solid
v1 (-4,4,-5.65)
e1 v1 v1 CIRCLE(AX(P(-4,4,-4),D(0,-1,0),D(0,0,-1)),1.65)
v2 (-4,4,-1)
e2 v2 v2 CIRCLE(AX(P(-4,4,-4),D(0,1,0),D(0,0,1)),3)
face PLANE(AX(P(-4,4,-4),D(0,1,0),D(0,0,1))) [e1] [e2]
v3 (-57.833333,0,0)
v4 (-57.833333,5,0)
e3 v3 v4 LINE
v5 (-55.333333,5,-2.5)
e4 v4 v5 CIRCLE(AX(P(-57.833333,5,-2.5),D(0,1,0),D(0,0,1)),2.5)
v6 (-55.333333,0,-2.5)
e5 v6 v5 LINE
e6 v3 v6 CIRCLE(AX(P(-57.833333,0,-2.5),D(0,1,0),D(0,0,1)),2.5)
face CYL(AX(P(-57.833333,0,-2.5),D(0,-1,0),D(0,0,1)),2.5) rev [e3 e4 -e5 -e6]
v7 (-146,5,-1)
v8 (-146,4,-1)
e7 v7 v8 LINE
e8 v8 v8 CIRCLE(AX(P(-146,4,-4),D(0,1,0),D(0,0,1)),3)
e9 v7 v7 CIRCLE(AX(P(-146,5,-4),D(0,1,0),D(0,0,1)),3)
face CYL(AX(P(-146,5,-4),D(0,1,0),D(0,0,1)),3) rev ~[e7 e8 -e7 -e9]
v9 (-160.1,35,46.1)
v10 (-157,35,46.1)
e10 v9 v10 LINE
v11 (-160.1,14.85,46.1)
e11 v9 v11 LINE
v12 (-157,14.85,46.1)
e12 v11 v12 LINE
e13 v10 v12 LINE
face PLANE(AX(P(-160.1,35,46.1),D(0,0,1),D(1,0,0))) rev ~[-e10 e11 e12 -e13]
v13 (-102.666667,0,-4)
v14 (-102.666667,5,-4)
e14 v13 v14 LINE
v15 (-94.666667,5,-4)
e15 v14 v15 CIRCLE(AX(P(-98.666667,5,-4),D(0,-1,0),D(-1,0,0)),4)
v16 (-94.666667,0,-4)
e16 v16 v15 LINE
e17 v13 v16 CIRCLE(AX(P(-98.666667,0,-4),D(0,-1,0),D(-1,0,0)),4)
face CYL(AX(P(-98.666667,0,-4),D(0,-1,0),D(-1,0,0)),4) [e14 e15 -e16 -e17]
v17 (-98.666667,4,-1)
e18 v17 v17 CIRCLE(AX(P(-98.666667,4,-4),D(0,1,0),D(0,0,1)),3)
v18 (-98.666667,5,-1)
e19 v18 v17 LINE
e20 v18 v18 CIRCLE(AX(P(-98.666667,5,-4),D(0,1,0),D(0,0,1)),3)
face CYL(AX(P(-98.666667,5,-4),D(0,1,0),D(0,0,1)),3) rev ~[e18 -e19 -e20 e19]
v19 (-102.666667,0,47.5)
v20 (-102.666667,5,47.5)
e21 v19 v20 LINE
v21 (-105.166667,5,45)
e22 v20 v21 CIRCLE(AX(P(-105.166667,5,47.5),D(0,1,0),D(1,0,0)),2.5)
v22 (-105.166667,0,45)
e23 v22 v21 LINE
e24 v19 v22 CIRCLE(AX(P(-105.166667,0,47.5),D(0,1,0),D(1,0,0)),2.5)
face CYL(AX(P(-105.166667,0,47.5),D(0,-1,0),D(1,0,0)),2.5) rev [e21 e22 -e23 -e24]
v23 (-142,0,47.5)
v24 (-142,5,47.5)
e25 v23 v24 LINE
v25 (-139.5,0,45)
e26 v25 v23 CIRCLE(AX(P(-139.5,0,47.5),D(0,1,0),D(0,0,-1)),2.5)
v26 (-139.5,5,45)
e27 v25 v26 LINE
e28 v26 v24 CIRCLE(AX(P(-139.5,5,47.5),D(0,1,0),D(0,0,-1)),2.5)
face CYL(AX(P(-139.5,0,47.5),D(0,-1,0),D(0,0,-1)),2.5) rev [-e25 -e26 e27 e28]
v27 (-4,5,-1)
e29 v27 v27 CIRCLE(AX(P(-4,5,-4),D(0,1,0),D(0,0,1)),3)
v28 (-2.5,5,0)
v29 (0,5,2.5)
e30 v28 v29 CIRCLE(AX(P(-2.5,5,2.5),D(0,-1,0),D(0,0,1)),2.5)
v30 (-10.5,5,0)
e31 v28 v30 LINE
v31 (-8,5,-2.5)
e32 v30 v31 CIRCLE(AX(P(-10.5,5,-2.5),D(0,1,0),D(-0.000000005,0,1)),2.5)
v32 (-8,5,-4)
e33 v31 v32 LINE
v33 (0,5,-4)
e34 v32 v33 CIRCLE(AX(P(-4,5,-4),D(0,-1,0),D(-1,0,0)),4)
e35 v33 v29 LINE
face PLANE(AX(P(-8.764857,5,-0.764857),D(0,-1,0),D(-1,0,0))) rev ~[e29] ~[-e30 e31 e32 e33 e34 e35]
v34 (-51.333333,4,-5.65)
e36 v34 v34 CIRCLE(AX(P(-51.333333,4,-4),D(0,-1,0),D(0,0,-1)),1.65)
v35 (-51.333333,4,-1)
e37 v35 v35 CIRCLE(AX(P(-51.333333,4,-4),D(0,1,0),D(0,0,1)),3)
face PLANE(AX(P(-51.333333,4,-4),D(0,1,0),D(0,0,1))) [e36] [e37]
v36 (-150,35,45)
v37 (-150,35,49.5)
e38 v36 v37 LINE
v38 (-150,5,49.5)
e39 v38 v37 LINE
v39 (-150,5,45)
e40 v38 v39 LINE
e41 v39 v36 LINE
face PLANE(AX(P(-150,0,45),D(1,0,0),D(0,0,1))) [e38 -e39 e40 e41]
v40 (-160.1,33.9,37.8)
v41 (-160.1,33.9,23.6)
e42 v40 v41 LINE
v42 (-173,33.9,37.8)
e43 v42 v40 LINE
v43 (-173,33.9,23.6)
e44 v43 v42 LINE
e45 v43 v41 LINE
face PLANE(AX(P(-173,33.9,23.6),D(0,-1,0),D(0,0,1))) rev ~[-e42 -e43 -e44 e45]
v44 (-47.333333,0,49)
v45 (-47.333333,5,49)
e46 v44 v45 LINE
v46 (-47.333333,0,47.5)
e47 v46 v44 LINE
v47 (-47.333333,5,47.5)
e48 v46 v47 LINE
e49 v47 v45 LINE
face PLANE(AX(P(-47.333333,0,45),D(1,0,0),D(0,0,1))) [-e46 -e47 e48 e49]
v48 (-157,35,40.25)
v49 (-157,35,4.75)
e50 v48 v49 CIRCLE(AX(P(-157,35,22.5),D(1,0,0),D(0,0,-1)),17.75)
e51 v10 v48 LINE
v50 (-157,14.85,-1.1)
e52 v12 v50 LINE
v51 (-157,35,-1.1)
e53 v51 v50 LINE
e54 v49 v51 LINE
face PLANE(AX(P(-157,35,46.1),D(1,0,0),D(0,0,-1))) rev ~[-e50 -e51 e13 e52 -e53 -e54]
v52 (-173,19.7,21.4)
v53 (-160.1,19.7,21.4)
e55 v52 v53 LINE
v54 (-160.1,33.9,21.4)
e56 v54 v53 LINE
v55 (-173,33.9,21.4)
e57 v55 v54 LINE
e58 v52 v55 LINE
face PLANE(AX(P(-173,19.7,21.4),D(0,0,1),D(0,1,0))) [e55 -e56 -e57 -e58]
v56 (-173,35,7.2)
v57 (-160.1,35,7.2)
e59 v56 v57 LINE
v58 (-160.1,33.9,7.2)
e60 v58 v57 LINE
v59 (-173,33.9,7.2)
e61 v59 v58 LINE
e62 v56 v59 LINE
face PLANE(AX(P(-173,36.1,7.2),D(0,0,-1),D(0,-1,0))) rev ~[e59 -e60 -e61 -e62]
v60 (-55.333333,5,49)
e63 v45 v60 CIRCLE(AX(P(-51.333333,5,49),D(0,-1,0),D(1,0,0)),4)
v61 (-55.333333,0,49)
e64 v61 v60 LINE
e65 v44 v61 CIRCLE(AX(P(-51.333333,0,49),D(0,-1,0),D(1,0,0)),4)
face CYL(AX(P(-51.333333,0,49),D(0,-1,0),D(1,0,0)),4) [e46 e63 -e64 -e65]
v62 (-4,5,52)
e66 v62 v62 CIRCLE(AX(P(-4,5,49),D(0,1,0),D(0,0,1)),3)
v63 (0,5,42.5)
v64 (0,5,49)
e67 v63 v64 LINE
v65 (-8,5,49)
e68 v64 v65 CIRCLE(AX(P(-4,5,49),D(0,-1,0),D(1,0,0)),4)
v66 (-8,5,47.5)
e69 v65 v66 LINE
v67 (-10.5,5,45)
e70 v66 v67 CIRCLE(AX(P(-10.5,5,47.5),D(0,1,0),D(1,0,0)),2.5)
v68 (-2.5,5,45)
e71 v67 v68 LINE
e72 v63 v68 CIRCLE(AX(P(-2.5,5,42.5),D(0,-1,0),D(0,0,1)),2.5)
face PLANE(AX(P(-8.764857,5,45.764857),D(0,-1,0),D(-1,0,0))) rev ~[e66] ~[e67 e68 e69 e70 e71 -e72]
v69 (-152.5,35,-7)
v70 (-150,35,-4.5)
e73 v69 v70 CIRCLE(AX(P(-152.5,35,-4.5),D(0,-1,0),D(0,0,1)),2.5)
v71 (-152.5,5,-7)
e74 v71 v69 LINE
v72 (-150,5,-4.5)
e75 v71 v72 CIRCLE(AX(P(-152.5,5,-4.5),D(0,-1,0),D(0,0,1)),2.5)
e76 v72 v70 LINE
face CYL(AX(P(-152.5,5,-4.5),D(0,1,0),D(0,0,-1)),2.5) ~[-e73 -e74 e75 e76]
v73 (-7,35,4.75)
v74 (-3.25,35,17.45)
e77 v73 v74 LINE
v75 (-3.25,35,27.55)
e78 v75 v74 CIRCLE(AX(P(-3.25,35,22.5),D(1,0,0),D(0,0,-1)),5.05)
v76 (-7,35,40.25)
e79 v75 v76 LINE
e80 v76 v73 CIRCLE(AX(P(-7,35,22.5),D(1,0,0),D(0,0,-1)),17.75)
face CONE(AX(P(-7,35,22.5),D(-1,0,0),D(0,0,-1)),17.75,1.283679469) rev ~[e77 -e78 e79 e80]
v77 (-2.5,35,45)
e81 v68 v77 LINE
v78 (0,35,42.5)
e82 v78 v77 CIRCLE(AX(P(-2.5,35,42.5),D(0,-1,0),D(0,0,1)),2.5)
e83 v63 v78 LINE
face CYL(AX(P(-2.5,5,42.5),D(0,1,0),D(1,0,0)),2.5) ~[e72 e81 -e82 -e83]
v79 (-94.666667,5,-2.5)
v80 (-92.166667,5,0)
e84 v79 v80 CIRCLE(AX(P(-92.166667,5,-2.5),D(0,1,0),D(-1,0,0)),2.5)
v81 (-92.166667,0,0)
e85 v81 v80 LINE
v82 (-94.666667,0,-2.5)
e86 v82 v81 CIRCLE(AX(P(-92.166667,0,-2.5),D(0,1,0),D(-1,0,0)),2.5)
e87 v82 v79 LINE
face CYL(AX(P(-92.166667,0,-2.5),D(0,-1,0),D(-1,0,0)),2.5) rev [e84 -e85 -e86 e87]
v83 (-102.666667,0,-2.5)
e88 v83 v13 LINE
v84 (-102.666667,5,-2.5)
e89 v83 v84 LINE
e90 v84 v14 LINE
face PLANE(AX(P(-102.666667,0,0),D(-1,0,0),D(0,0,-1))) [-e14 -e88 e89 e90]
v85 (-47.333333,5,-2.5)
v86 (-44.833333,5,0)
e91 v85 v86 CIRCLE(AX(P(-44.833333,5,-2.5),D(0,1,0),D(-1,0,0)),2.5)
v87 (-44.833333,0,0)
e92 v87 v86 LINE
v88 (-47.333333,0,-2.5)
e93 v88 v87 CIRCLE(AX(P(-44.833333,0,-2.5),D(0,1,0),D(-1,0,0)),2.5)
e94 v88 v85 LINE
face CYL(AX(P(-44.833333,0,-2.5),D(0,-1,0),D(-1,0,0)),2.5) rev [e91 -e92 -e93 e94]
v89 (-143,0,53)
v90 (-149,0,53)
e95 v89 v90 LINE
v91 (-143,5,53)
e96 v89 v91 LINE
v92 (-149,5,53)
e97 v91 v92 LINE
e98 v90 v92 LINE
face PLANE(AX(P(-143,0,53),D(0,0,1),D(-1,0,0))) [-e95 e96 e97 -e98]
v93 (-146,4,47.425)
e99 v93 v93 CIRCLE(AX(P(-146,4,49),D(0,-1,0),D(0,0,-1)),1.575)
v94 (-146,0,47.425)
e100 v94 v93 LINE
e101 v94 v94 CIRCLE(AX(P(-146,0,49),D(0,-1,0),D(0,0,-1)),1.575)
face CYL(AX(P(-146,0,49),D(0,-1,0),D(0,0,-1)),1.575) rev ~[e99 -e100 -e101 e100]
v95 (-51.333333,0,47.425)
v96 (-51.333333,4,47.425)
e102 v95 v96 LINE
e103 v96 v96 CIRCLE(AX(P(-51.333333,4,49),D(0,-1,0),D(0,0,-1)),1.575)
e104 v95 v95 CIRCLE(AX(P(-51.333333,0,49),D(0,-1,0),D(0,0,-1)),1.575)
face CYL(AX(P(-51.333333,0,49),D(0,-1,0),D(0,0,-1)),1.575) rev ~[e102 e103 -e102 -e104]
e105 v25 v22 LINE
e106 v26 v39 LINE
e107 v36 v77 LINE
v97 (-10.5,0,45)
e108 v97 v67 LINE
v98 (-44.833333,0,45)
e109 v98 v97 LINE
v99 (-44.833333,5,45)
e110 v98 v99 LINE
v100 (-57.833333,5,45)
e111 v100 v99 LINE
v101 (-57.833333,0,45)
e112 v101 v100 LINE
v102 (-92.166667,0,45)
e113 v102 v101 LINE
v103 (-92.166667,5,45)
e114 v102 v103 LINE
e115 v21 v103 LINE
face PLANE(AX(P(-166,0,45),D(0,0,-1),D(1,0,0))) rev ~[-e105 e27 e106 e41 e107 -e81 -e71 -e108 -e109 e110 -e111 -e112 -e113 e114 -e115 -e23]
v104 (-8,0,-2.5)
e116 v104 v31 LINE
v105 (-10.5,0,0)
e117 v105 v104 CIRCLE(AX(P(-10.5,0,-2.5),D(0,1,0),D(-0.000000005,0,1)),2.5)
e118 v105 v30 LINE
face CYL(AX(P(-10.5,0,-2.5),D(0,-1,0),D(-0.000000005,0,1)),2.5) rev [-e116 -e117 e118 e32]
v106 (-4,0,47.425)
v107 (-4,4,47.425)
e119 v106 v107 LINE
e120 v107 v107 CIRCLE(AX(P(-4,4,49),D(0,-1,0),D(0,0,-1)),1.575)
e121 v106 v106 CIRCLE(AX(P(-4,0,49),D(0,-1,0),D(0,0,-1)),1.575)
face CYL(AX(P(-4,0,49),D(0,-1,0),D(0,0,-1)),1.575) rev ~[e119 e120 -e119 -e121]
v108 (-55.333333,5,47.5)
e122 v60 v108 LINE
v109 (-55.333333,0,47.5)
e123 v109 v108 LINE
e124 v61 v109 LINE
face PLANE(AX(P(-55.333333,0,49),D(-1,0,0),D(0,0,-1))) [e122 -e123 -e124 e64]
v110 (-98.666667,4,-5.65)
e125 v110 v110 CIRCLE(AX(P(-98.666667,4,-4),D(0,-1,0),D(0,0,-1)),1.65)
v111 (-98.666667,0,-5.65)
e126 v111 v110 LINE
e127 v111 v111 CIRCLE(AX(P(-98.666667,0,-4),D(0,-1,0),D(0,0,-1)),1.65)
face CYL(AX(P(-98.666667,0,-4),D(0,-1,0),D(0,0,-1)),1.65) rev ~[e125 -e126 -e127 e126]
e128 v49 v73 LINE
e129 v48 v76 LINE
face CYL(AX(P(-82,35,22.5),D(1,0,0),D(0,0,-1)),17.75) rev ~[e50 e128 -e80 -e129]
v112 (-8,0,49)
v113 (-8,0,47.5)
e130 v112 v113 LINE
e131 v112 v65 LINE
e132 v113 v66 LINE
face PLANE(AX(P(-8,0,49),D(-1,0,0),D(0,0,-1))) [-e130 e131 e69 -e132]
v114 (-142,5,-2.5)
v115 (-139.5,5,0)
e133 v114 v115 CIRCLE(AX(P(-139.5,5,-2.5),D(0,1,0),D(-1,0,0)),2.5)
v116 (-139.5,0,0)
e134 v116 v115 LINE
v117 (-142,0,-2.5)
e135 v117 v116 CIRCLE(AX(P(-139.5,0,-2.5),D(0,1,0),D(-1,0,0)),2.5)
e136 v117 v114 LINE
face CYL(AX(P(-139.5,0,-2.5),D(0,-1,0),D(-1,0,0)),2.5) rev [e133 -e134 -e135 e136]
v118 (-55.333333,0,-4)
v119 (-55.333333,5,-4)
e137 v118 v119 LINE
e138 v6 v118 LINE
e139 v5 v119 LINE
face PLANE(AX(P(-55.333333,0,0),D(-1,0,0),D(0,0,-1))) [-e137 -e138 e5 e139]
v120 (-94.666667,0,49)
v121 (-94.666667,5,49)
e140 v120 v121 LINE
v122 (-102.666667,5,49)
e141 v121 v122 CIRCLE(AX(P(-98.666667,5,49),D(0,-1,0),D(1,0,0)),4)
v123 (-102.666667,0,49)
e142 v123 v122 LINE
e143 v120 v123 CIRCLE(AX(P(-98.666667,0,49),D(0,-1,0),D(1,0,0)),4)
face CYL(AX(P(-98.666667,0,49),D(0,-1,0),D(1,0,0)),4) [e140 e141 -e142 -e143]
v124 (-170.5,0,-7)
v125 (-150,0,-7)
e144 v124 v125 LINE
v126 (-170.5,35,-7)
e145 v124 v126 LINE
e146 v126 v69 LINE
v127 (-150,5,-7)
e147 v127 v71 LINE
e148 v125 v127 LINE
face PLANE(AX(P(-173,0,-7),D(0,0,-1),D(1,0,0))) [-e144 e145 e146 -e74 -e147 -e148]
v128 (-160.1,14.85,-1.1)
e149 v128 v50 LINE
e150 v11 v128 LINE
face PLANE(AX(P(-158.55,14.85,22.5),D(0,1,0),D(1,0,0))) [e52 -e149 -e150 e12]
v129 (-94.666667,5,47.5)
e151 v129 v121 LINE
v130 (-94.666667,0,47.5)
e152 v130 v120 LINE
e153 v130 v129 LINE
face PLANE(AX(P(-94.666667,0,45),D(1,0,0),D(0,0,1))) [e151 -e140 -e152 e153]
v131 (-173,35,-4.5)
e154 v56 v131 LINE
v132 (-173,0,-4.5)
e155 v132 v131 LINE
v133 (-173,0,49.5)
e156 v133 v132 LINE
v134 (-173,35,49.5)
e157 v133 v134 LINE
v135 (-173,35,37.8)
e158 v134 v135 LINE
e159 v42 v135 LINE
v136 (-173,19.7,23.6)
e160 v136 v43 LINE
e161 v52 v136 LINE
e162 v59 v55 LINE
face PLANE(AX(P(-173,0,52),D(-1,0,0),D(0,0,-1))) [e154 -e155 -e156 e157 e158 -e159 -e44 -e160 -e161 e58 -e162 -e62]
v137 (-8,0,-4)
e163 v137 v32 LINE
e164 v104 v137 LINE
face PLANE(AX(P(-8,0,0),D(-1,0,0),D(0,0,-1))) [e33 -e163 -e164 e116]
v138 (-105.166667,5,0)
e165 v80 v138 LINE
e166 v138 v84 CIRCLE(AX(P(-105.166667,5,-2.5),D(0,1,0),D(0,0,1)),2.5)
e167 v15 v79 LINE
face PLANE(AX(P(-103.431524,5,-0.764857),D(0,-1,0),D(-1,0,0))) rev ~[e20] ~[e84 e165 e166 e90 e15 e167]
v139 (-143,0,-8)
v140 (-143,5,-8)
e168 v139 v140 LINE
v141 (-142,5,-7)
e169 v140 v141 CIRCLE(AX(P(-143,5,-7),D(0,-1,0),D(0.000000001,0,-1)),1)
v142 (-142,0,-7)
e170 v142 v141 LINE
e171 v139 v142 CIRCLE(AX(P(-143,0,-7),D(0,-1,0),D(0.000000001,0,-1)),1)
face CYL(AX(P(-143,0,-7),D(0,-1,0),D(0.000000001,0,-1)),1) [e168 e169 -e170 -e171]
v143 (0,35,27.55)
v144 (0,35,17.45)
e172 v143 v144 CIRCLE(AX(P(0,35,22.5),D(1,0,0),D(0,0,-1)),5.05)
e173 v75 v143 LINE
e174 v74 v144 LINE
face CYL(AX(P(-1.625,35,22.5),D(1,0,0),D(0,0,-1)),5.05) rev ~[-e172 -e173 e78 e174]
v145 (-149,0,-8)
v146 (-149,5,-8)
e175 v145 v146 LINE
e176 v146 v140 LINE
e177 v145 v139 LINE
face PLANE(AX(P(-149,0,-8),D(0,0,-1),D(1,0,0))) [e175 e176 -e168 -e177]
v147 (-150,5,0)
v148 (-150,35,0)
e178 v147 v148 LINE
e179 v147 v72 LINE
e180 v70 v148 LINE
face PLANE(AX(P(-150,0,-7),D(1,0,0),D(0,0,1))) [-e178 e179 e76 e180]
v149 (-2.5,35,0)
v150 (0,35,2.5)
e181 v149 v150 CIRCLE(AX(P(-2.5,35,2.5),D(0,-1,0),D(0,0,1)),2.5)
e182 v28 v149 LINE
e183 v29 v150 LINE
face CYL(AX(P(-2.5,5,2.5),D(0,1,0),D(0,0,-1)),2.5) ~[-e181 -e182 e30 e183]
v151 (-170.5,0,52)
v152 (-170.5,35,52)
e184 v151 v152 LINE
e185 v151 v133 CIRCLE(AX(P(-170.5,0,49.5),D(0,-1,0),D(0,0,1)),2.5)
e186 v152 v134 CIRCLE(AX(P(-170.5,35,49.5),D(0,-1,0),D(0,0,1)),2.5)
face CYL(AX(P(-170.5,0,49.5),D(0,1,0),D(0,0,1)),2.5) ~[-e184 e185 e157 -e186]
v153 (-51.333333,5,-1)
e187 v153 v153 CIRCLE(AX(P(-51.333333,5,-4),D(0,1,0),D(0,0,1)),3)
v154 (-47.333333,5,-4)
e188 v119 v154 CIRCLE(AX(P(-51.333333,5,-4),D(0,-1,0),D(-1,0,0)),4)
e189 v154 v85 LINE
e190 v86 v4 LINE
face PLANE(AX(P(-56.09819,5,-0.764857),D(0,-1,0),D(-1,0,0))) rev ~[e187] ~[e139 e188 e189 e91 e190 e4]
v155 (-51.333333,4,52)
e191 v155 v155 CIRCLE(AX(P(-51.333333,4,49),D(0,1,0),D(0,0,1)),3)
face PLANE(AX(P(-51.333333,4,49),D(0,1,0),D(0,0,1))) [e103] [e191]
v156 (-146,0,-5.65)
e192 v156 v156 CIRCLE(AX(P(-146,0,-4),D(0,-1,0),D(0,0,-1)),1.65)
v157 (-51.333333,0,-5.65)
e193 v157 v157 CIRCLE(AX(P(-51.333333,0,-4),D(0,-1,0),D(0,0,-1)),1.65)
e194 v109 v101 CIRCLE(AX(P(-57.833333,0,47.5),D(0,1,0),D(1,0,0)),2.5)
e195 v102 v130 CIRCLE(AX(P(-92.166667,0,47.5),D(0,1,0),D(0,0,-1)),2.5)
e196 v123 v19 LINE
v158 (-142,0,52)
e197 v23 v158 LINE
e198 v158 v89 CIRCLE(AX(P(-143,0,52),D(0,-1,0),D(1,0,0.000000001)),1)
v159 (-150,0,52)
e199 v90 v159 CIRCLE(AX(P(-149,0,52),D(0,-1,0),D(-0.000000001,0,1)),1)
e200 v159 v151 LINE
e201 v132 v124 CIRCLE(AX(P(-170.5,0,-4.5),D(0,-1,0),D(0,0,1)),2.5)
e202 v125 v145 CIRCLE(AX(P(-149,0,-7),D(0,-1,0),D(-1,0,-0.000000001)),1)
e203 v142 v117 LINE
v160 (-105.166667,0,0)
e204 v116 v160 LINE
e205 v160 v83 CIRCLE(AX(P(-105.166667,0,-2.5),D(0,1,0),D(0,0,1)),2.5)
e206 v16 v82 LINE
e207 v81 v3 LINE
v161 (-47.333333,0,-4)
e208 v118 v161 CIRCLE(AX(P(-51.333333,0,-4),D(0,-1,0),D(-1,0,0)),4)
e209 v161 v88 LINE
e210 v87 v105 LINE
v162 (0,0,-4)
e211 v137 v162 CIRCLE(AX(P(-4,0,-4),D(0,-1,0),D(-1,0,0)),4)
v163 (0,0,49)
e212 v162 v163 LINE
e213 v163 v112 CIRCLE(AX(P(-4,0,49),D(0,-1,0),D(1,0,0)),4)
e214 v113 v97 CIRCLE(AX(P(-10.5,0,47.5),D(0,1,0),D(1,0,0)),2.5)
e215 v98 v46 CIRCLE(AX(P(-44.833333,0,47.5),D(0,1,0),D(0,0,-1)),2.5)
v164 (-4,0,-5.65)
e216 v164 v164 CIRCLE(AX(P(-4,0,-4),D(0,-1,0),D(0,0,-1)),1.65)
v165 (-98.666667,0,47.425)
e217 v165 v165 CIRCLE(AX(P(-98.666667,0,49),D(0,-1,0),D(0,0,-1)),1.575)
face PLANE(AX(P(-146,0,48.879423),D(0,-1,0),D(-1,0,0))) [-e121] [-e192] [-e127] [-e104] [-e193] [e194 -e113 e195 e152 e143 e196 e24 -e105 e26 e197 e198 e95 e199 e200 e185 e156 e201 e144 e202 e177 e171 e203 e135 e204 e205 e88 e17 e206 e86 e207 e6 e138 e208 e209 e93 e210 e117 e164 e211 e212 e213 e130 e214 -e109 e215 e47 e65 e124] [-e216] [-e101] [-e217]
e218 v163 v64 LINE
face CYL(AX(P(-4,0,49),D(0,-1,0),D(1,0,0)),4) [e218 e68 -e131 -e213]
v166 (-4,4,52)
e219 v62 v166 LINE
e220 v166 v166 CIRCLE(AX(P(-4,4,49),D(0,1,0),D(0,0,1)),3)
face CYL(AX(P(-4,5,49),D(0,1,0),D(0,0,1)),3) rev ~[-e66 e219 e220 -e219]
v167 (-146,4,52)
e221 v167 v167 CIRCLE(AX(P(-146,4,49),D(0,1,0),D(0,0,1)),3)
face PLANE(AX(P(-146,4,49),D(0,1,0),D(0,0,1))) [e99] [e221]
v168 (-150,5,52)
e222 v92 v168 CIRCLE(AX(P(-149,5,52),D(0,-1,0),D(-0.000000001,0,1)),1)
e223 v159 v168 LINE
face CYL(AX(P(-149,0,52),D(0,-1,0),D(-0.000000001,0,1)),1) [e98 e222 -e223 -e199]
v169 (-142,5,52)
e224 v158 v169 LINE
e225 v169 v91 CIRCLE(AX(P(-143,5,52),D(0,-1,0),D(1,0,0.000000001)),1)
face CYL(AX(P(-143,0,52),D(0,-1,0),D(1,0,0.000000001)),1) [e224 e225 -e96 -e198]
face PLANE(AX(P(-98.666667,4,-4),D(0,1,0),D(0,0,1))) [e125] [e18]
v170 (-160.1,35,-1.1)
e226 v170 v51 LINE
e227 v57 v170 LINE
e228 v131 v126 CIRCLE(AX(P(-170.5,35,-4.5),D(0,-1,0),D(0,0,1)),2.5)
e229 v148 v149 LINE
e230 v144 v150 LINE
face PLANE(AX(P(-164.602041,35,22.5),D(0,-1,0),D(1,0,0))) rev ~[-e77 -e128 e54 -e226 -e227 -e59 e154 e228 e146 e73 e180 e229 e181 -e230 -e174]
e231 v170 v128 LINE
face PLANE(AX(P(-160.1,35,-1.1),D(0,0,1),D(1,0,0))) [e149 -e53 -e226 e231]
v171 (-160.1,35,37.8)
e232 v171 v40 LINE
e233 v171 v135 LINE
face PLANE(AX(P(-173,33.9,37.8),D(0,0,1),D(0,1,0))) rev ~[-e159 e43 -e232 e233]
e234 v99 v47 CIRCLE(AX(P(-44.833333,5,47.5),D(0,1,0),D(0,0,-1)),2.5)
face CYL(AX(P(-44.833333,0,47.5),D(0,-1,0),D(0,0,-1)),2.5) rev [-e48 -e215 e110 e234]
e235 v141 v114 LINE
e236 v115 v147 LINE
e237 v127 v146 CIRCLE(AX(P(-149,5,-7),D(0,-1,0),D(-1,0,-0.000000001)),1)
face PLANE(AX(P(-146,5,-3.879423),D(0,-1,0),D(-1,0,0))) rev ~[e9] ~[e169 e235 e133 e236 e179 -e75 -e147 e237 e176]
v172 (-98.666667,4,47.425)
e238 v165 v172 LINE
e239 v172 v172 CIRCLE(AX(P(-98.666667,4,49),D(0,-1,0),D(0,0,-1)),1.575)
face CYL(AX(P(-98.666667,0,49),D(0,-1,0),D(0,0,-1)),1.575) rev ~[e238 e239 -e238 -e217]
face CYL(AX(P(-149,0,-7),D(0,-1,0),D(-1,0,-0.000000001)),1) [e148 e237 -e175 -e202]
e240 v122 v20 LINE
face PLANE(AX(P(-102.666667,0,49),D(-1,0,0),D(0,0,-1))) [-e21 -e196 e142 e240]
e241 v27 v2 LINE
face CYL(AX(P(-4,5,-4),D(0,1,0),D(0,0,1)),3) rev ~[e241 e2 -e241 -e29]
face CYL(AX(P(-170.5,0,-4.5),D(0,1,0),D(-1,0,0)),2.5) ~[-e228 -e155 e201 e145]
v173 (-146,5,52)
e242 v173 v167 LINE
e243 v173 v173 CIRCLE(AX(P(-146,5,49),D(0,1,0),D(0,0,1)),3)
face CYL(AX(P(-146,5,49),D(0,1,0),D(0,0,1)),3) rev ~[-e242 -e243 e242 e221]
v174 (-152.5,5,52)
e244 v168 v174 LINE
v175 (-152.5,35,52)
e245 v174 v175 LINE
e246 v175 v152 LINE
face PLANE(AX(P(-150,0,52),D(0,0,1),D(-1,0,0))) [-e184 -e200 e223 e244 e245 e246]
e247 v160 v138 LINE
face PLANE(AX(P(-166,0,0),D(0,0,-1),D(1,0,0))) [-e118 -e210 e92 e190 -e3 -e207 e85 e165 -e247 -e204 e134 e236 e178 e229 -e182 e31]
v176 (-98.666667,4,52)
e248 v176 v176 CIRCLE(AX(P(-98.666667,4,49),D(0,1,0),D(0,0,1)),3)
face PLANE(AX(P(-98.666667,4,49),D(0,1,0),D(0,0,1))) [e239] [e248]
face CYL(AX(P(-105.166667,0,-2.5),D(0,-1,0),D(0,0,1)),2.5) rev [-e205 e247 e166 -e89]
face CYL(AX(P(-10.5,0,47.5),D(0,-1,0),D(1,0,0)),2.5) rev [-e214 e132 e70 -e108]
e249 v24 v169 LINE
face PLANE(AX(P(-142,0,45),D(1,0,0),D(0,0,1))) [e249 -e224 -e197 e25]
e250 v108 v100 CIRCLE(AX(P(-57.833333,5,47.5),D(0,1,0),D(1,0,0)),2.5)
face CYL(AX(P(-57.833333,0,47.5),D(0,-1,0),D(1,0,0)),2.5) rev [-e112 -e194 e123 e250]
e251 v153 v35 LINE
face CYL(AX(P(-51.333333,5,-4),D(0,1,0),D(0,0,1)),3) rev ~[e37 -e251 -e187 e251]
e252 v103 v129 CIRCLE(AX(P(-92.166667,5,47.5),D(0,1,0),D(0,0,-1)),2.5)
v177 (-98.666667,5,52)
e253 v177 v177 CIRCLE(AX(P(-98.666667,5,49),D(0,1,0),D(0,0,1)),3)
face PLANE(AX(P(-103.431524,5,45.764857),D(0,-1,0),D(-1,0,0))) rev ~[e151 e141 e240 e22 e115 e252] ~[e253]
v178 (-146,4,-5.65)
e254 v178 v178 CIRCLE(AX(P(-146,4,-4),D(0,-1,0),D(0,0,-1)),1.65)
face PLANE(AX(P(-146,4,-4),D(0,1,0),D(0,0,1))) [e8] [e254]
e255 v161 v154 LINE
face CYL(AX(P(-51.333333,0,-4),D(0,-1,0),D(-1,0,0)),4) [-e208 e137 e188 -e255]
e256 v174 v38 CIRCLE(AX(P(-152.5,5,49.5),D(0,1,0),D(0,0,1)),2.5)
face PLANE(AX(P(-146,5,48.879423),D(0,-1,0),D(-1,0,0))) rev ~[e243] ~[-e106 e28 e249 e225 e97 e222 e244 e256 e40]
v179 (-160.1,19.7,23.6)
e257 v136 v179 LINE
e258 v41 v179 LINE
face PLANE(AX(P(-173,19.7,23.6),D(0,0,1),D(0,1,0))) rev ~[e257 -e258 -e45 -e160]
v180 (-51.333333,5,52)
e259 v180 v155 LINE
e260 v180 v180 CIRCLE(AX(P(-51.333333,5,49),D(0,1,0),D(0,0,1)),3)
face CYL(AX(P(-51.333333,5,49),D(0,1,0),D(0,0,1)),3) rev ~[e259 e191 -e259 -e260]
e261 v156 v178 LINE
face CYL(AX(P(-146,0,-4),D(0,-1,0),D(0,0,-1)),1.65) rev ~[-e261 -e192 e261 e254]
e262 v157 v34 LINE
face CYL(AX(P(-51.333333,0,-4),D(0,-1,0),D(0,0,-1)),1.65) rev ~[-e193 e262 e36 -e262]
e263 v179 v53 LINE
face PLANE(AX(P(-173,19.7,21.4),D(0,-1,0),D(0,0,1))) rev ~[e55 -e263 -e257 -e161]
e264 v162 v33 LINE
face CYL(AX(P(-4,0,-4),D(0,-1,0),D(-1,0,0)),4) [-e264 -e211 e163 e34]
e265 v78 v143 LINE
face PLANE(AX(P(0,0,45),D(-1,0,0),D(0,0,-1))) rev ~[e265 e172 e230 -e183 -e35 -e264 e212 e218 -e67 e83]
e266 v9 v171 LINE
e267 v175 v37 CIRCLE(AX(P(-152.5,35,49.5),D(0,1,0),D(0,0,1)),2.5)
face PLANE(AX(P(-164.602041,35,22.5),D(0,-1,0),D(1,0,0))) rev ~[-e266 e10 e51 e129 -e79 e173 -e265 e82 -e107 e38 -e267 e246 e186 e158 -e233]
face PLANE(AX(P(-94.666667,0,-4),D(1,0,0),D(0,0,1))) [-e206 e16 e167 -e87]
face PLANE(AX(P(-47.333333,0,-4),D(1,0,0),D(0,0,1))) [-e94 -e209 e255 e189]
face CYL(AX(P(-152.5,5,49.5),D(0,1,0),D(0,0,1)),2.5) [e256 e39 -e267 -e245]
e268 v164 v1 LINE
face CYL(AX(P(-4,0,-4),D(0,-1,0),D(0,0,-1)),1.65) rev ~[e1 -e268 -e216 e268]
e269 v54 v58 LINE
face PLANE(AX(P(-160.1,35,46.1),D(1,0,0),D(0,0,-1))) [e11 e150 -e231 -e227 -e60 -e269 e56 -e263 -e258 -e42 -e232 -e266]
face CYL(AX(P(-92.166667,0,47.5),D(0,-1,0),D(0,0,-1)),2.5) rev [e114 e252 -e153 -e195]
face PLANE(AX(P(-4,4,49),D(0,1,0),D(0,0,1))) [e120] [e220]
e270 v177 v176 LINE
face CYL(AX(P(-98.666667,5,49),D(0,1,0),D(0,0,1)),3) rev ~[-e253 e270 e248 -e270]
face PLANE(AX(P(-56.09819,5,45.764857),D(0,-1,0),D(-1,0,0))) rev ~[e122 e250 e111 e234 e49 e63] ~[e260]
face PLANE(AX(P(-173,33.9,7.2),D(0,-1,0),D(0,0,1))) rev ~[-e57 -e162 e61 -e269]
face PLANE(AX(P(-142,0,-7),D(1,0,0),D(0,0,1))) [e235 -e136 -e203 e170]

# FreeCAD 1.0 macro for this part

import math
import FreeCAD as App
import Part
import Sketcher

V = App.Vector
Q = App.Units.Quantity


def edges_at(feature, points):
    """Names of the edges that pass closest to the given points."""
    edges = feature.Shape.Edges
    near = lambda p: min(range(len(edges)), key=lambda i: edges[i].distToShape(Part.Vertex(*p))[0])
    return sorted({f"Edge{near(p) + 1}" for p in points})


def add_polygon(sketch, points):
    """Adds a closed chain of lines whose ends are joined by coincident constraints."""
    first, n = sketch.GeometryCount, len(points)
    for a, b in zip(points, points[1:] + points[:1]):
        sketch.addGeometry(Part.LineSegment(App.Vector(*a, 0), App.Vector(*b, 0)), False)
    for i in range(n):
        sketch.addConstraint(Sketcher.Constraint("Coincident", first + i, 2, first + (i + 1) % n, 1))

doc = App.newDocument("Part")
body = doc.addObject("PartDesign::Body", "Body")

# Sketch on XZ plane
sketch1 = body.newObject("Sketcher::SketchObject", "Sketch")
sketch1.AttachmentSupport = (doc.getObject("XZ_Plane"), [""])
sketch1.MapMode = "FlatFace"
add_polygon(sketch1, [(-166, 0), (-166, 45), (0, 45), (0, 0)])  # lines 0-3
sketch1.addConstraint(Sketcher.Constraint("Vertical", 0))
sketch1.addConstraint(Sketcher.Constraint("Horizontal", 1))
sketch1.addConstraint(Sketcher.Constraint("Vertical", 2))
sketch1.addConstraint(Sketcher.Constraint("Horizontal", 3))
sketch1.addConstraint(Sketcher.Constraint("Coincident", 2, 2, -1, 1))
sketch1.addConstraint(Sketcher.Constraint("DistanceX", 1, 1, 1, 2, Q("166 mm")))
sketch1.addConstraint(Sketcher.Constraint("DistanceY", 0, 1, 0, 2, Q("45 mm")))
pad1 = body.newObject("PartDesign::Pad", "Pad")
pad1.Profile = sketch1
pad1.Length = 35
pad1.Reversed = True

# Sketch on XZ plane
sketch2 = body.newObject("Sketcher::SketchObject", "Sketch001")
sketch2.AttachmentSupport = (doc.getObject("XZ_Plane"), [""])
sketch2.MapMode = "FlatFace"
sketch2.AttachmentOffset = App.Placement(V(0, 0, -35), App.Rotation())
add_polygon(sketch2, [(-157, 4.8), (-157, 22.5), (0, 22.5), (0, 17.4), (-3.2, 17.4), (-7, 4.8)])  # lines 0-5
sketch2.addGeometry(Part.LineSegment(V(-157, 22.5, 0), V(0, 22.5, 0)), True)  # axis
sketch2.addConstraint(Sketcher.Constraint("Vertical", 0))
sketch2.addConstraint(Sketcher.Constraint("Horizontal", 1))
sketch2.addConstraint(Sketcher.Constraint("Vertical", 2))
sketch2.addConstraint(Sketcher.Constraint("Horizontal", 3))
sketch2.addConstraint(Sketcher.Constraint("Horizontal", 5))
sketch2.addConstraint(Sketcher.Constraint("Horizontal", 6))
sketch2.addConstraint(Sketcher.Constraint("Coincident", 6, 1, 0, 2))
sketch2.addConstraint(Sketcher.Constraint("PointOnObject", 1, 2, -2))
sketch2.addConstraint(Sketcher.Constraint("PointOnObject", 6, 2, -2))
sketch2.addConstraint(Sketcher.Constraint("DistanceX", 1, 1, 1, 2, Q("157 mm")))
sketch2.addConstraint(Sketcher.Constraint("DistanceX", 5, 2, 5, 1, Q("150 mm")))
sketch2.addConstraint(Sketcher.Constraint("DistanceX", 3, 2, 3, 1, Q("3.25 mm")))
sketch2.addConstraint(Sketcher.Constraint("DistanceY", 0, 1, 0, 2, Q("17.75 mm")))
sketch2.addConstraint(Sketcher.Constraint("DistanceY", 2, 2, 2, 1, Q("5.05 mm")))
sketch2.addConstraint(Sketcher.Constraint("DistanceY", -1, 1, 0, 2, Q("22.5 mm")))
groove = body.newObject("PartDesign::Groove", "Groove")
groove.Profile = sketch2
groove.ReferenceAxis = (sketch2, ["Axis0"])
groove.Angle = 360

# Sketch on XZ plane
sketch3 = body.newObject("Sketcher::SketchObject", "Sketch002")
sketch3.AttachmentSupport = (doc.getObject("XZ_Plane"), [""])
sketch3.MapMode = "FlatFace"
add_polygon(sketch3, [(-150, 45), (-150, 52), (-173, 52), (-173, -7), (-150, -7), (-150, 0), (-166, 0), (-166, 45)])  # lines 0-7
sketch3.addConstraint(Sketcher.Constraint("Vertical", 0))
sketch3.addConstraint(Sketcher.Constraint("Horizontal", 1))
sketch3.addConstraint(Sketcher.Constraint("Vertical", 2))
sketch3.addConstraint(Sketcher.Constraint("Horizontal", 3))
sketch3.addConstraint(Sketcher.Constraint("Vertical", 4))
sketch3.addConstraint(Sketcher.Constraint("Horizontal", 5))
sketch3.addConstraint(Sketcher.Constraint("Vertical", 6))
sketch3.addConstraint(Sketcher.Constraint("Horizontal", 7))
sketch3.addConstraint(Sketcher.Constraint("PointOnObject", 4, 2, -1))
sketch3.addConstraint(Sketcher.Constraint("Vertical", 0, 2, 3, 2))
sketch3.addConstraint(Sketcher.Constraint("Equal", 0, 4))
sketch3.addConstraint(Sketcher.Constraint("DistanceX", 1, 2, 1, 1, Q("23 mm")))
sketch3.addConstraint(Sketcher.Constraint("DistanceX", 5, 2, 5, 1, Q("16 mm")))
sketch3.addConstraint(Sketcher.Constraint("DistanceY", 0, 1, 0, 2, Q("7 mm")))
sketch3.addConstraint(Sketcher.Constraint("DistanceY", 2, 2, 2, 1, Q("59 mm")))
sketch3.addConstraint(Sketcher.Constraint("DistanceX", 0, 2, -1, 1, Q("150 mm")))
pad2 = body.newObject("PartDesign::Pad", "Pad001")
pad2.Profile = sketch3
pad2.Length = 35
pad2.Reversed = True

# Sketch on XZ plane
sketch4 = body.newObject("Sketcher::SketchObject", "Sketch003")
sketch4.AttachmentSupport = (doc.getObject("XZ_Plane"), [""])
sketch4.MapMode = "FlatFace"
sketch4.AttachmentOffset = App.Placement(V(0, 0, -35), App.Rotation())
add_polygon(sketch4, [(-160.1, -1.1), (-160.1, 46.1), (-157, 46.1), (-157, -1.1)])  # lines 0-3
sketch4.addConstraint(Sketcher.Constraint("Vertical", 0))
sketch4.addConstraint(Sketcher.Constraint("Horizontal", 1))
sketch4.addConstraint(Sketcher.Constraint("Vertical", 2))
sketch4.addConstraint(Sketcher.Constraint("Horizontal", 3))
sketch4.addConstraint(Sketcher.Constraint("DistanceX", 1, 1, 1, 2, Q("3.1 mm")))
sketch4.addConstraint(Sketcher.Constraint("DistanceY", 0, 1, 0, 2, Q("47.2 mm")))
sketch4.addConstraint(Sketcher.Constraint("DistanceX", 1, 2, -1, 1, Q("157 mm")))
sketch4.addConstraint(Sketcher.Constraint("DistanceY", -1, 1, 0, 2, Q("46.1 mm")))
pocket1 = body.newObject("PartDesign::Pocket", "Pocket")
pocket1.Profile = sketch4
pocket1.Length = 20.15
pocket1.Reversed = True

# Sketch on YZ plane
sketch5 = body.newObject("Sketcher::SketchObject", "Sketch004")
sketch5.AttachmentSupport = (doc.getObject("YZ_Plane"), [""])
sketch5.MapMode = "FlatFace"
sketch5.AttachmentOffset = App.Placement(V(0, 0, -173), App.Rotation())
add_polygon(sketch5, [(50.3, 21.4), (36.1, 21.4), (36.1, 7.2), (33.9, 7.2), (33.9, 21.4), (19.7, 21.4), (19.7, 23.6), (33.9, 23.6), (33.9, 37.8), (36.1, 37.8), (36.1, 23.6), (50.3, 23.6)])  # lines 0-11
sketch5.addConstraint(Sketcher.Constraint("Horizontal", 0))
sketch5.addConstraint(Sketcher.Constraint("Vertical", 1))
sketch5.addConstraint(Sketcher.Constraint("Horizontal", 2))
sketch5.addConstraint(Sketcher.Constraint("Vertical", 3))
sketch5.addConstraint(Sketcher.Constraint("Horizontal", 4))
sketch5.addConstraint(Sketcher.Constraint("Vertical", 5))
sketch5.addConstraint(Sketcher.Constraint("Horizontal", 6))
sketch5.addConstraint(Sketcher.Constraint("Vertical", 7))
sketch5.addConstraint(Sketcher.Constraint("Horizontal", 8))
sketch5.addConstraint(Sketcher.Constraint("Vertical", 9))
sketch5.addConstraint(Sketcher.Constraint("Horizontal", 10))
sketch5.addConstraint(Sketcher.Constraint("Vertical", 11))
sketch5.addConstraint(Sketcher.Constraint("Horizontal", 0, 2, 3, 2))
sketch5.addConstraint(Sketcher.Constraint("Horizontal", 6, 2, 9, 2))
sketch5.addConstraint(Sketcher.Constraint("Vertical", 3, 2, 6, 2))
sketch5.addConstraint(Sketcher.Constraint("Vertical", 1, 2, 8, 2))
sketch5.addConstraint(Sketcher.Constraint("Equal", 0, 4))
sketch5.addConstraint(Sketcher.Constraint("Equal", 10, 1))
sketch5.addConstraint(Sketcher.Constraint("Equal", 8, 5))
sketch5.addConstraint(Sketcher.Constraint("Equal", 3, 7))
sketch5.addConstraint(Sketcher.Constraint("DistanceX", 0, 2, 0, 1, Q("14.2 mm")))
sketch5.addConstraint(Sketcher.Constraint("DistanceX", 2, 2, 2, 1, Q("2.2 mm")))
sketch5.addConstraint(Sketcher.Constraint("DistanceX", -1, 1, 0, 2, Q("36.1 mm")))
sketch5.addConstraint(Sketcher.Constraint("DistanceY", -1, 1, 0, 2, Q("21.4 mm")))
pocket2 = body.newObject("PartDesign::Pocket", "Pocket001")
pocket2.Profile = sketch5
pocket2.Length = 20.15
pocket2.Reversed = True

# Sketch on XZ plane
sketch6 = body.newObject("Sketcher::SketchObject", "Sketch005")
sketch6.AttachmentSupport = (doc.getObject("XZ_Plane"), [""])
sketch6.MapMode = "FlatFace"
sketch6.addGeometry(Part.ArcOfCircle(Part.Circle(V(-143, 52, 0), V(0, 0, 1), 1), math.radians(0), math.radians(90)), False)
sketch6.addGeometry(Part.LineSegment(V(-143, 53, 0), V(-149, 53, 0)), False)
sketch6.addGeometry(Part.ArcOfCircle(Part.Circle(V(-149, 52, 0), V(0, 0, 1), 1), math.radians(90), math.radians(180)), False)
sketch6.addGeometry(Part.LineSegment(V(-150, 52, 0), V(-150, 45, 0)), False)
sketch6.addGeometry(Part.LineSegment(V(-150, 45, 0), V(-139.5, 45, 0)), False)
sketch6.addGeometry(Part.ArcOfCircle(Part.Circle(V(-139.5, 47.5, 0), V(0, 0, 1), 2.5), math.radians(180), math.radians(270)), False)
sketch6.addGeometry(Part.LineSegment(V(-142, 47.5, 0), V(-142, 52, 0)), False)
sketch6.addGeometry(Part.Circle(V(-146, 49, 0), V(0, 0, 1), 1.6), False)
sketch6.addGeometry(Part.ArcOfCircle(Part.Circle(V(-105.2, 47.5, 0), V(0, 0, 1), 2.5), math.radians(-90), math.radians(0)), False)
sketch6.addGeometry(Part.LineSegment(V(-105.2, 45, 0), V(-92.2, 45, 0)), False)
sketch6.addGeometry(Part.ArcOfCircle(Part.Circle(V(-92.2, 47.5, 0), V(0, 0, 1), 2.5), math.radians(180), math.radians(270)), False)
sketch6.addGeometry(Part.LineSegment(V(-94.7, 47.5, 0), V(-94.7, 49, 0)), False)
sketch6.addGeometry(Part.ArcOfCircle(Part.Circle(V(-98.7, 49, 0), V(0, 0, 1), 4), math.radians(0), math.radians(180)), False)
sketch6.addGeometry(Part.LineSegment(V(-102.7, 49, 0), V(-102.7, 47.5, 0)), False)
sketch6.addGeometry(Part.Circle(V(-98.7, 49, 0), V(0, 0, 1), 1.6), False)
sketch6.addGeometry(Part.ArcOfCircle(Part.Circle(V(-57.8, 47.5, 0), V(0, 0, 1), 2.5), math.radians(-90), math.radians(0)), False)
sketch6.addGeometry(Part.LineSegment(V(-57.8, 45, 0), V(-44.8, 45, 0)), False)
sketch6.addGeometry(Part.ArcOfCircle(Part.Circle(V(-44.8, 47.5, 0), V(0, 0, 1), 2.5), math.radians(180), math.radians(270)), False)
sketch6.addGeometry(Part.LineSegment(V(-47.3, 47.5, 0), V(-47.3, 49, 0)), False)
sketch6.addGeometry(Part.ArcOfCircle(Part.Circle(V(-51.3, 49, 0), V(0, 0, 1), 4), math.radians(0), math.radians(180)), False)
sketch6.addGeometry(Part.LineSegment(V(-55.3, 49, 0), V(-55.3, 47.5, 0)), False)
sketch6.addGeometry(Part.Circle(V(-51.3, 49, 0), V(0, 0, 1), 1.6), False)
sketch6.addGeometry(Part.ArcOfCircle(Part.Circle(V(-10.5, 47.5, 0), V(0, 0, 1), 2.5), math.radians(-90), math.radians(0)), False)
sketch6.addGeometry(Part.LineSegment(V(-10.5, 45, 0), V(0, 45, 0)), False)
sketch6.addGeometry(Part.LineSegment(V(0, 45, 0), V(0, 49, 0)), False)
sketch6.addGeometry(Part.ArcOfCircle(Part.Circle(V(-4, 49, 0), V(0, 0, 1), 4), math.radians(0), math.radians(180)), False)
sketch6.addGeometry(Part.LineSegment(V(-8, 49, 0), V(-8, 47.5, 0)), False)
sketch6.addGeometry(Part.Circle(V(-4, 49, 0), V(0, 0, 1), 1.6), False)
sketch6.addGeometry(Part.LineSegment(V(0, 0, 0), V(-10.5, 0, 0)), False)
sketch6.addGeometry(Part.ArcOfCircle(Part.Circle(V(-10.5, -2.5, 0), V(0, 0, 1), 2.5), math.radians(0), math.radians(90)), False)
sketch6.addGeometry(Part.LineSegment(V(-8, -2.5, 0), V(-8, -4, 0)), False)
sketch6.addGeometry(Part.ArcOfCircle(Part.Circle(V(-4, -4, 0), V(0, 0, 1), 4), math.radians(180), math.radians(360)), False)
sketch6.addGeometry(Part.LineSegment(V(0, -4, 0), V(0, 0, 0)), False)
sketch6.addGeometry(Part.Circle(V(-4, -4, 0), V(0, 0, 1), 1.6), False)
sketch6.addGeometry(Part.LineSegment(V(-44.8, 0, 0), V(-57.8, 0, 0)), False)
sketch6.addGeometry(Part.ArcOfCircle(Part.Circle(V(-57.8, -2.5, 0), V(0, 0, 1), 2.5), math.radians(0), math.radians(90)), False)
sketch6.addGeometry(Part.LineSegment(V(-55.3, -2.5, 0), V(-55.3, -4, 0)), False)
sketch6.addGeometry(Part.ArcOfCircle(Part.Circle(V(-51.3, -4, 0), V(0, 0, 1), 4), math.radians(180), math.radians(360)), False)
sketch6.addGeometry(Part.LineSegment(V(-47.3, -4, 0), V(-47.3, -2.5, 0)), False)
sketch6.addGeometry(Part.ArcOfCircle(Part.Circle(V(-44.8, -2.5, 0), V(0, 0, 1), 2.5), math.radians(90), math.radians(180)), False)
sketch6.addGeometry(Part.Circle(V(-51.3, -4, 0), V(0, 0, 1), 1.6), False)
sketch6.addGeometry(Part.LineSegment(V(-92.2, 0, 0), V(-105.2, 0, 0)), False)
sketch6.addGeometry(Part.ArcOfCircle(Part.Circle(V(-105.2, -2.5, 0), V(0, 0, 1), 2.5), math.radians(0), math.radians(90)), False)
sketch6.addGeometry(Part.LineSegment(V(-102.7, -2.5, 0), V(-102.7, -4, 0)), False)
sketch6.addGeometry(Part.ArcOfCircle(Part.Circle(V(-98.7, -4, 0), V(0, 0, 1), 4), math.radians(180), math.radians(360)), False)
sketch6.addGeometry(Part.LineSegment(V(-94.7, -4, 0), V(-94.7, -2.5, 0)), False)
sketch6.addGeometry(Part.ArcOfCircle(Part.Circle(V(-92.2, -2.5, 0), V(0, 0, 1), 2.5), math.radians(90), math.radians(180)), False)
sketch6.addGeometry(Part.Circle(V(-98.7, -4, 0), V(0, 0, 1), 1.6), False)
sketch6.addGeometry(Part.LineSegment(V(-150, 0, 0), V(-150, -7, 0)), False)
sketch6.addGeometry(Part.ArcOfCircle(Part.Circle(V(-149, -7, 0), V(0, 0, 1), 1), math.radians(-180), math.radians(-90)), False)
sketch6.addGeometry(Part.LineSegment(V(-149, -8, 0), V(-143, -8, 0)), False)
sketch6.addGeometry(Part.ArcOfCircle(Part.Circle(V(-143, -7, 0), V(0, 0, 1), 1), math.radians(-90), math.radians(0)), False)
sketch6.addGeometry(Part.LineSegment(V(-142, -7, 0), V(-142, -2.5, 0)), False)
sketch6.addGeometry(Part.ArcOfCircle(Part.Circle(V(-139.5, -2.5, 0), V(0, 0, 1), 2.5), math.radians(90), math.radians(180)), False)
sketch6.addGeometry(Part.LineSegment(V(-139.5, 0, 0), V(-150, 0, 0)), False)
sketch6.addGeometry(Part.Circle(V(-146, -4, 0), V(0, 0, 1), 1.6), False)
sketch6.addConstraint(Sketcher.Constraint("Tangent", 0, 2, 1, 1))
sketch6.addConstraint(Sketcher.Constraint("Tangent", 1, 2, 2, 1))
sketch6.addConstraint(Sketcher.Constraint("Tangent", 2, 2, 3, 1))
sketch6.addConstraint(Sketcher.Constraint("Coincident", 3, 2, 4, 1))
sketch6.addConstraint(Sketcher.Constraint("Tangent", 4, 2, 5, 2))
sketch6.addConstraint(Sketcher.Constraint("Tangent", 5, 1, 6, 1))
sketch6.addConstraint(Sketcher.Constraint("Tangent", 6, 2, 0, 1))
sketch6.addConstraint(Sketcher.Constraint("Tangent", 8, 1, 9, 1))
sketch6.addConstraint(Sketcher.Constraint("Tangent", 9, 2, 10, 2))
sketch6.addConstraint(Sketcher.Constraint("Tangent", 10, 1, 11, 1))
sketch6.addConstraint(Sketcher.Constraint("Tangent", 11, 2, 12, 1))
sketch6.addConstraint(Sketcher.Constraint("Tangent", 12, 2, 13, 1))
sketch6.addConstraint(Sketcher.Constraint("Tangent", 13, 2, 8, 2))
sketch6.addConstraint(Sketcher.Constraint("Tangent", 15, 1, 16, 1))
sketch6.addConstraint(Sketcher.Constraint("Tangent", 16, 2, 17, 2))
sketch6.addConstraint(Sketcher.Constraint("Tangent", 17, 1, 18, 1))
sketch6.addConstraint(Sketcher.Constraint("Tangent", 18, 2, 19, 1))
sketch6.addConstraint(Sketcher.Constraint("Tangent", 19, 2, 20, 1))
sketch6.addConstraint(Sketcher.Constraint("Tangent", 20, 2, 15, 2))
sketch6.addConstraint(Sketcher.Constraint("Tangent", 22, 1, 23, 1))
sketch6.addConstraint(Sketcher.Constraint("Coincident", 23, 2, 24, 1))
sketch6.addConstraint(Sketcher.Constraint("Tangent", 24, 2, 25, 1))
sketch6.addConstraint(Sketcher.Constraint("Tangent", 25, 2, 26, 1))
sketch6.addConstraint(Sketcher.Constraint("Tangent", 26, 2, 22, 2))
sketch6.addConstraint(Sketcher.Constraint("Tangent", 28, 2, 29, 2))
sketch6.addConstraint(Sketcher.Constraint("Tangent", 29, 1, 30, 1))
sketch6.addConstraint(Sketcher.Constraint("Tangent", 30, 2, 31, 1))
sketch6.addConstraint(Sketcher.Constraint("Tangent", 31, 2, 32, 1))
sketch6.addConstraint(Sketcher.Constraint("Coincident", 32, 2, 28, 1))
sketch6.addConstraint(Sketcher.Constraint("Tangent", 34, 2, 35, 2))
sketch6.addConstraint(Sketcher.Constraint("Tangent", 35, 1, 36, 1))
sketch6.addConstraint(Sketcher.Constraint("Tangent", 36, 2, 37, 1))
sketch6.addConstraint(Sketcher.Constraint("Tangent", 37, 2, 38, 1))
sketch6.addConstraint(Sketcher.Constraint("Tangent", 38, 2, 39, 2))
sketch6.addConstraint(Sketcher.Constraint("Tangent", 39, 1, 34, 1))
sketch6.addConstraint(Sketcher.Constraint("Tangent", 41, 2, 42, 2))
sketch6.addConstraint(Sketcher.Constraint("Tangent", 42, 1, 43, 1))
sketch6.addConstraint(Sketcher.Constraint("Tangent", 43, 2, 44, 1))
sketch6.addConstraint(Sketcher.Constraint("Tangent", 44, 2, 45, 1))
sketch6.addConstraint(Sketcher.Constraint("Tangent", 45, 2, 46, 2))
sketch6.addConstraint(Sketcher.Constraint("Tangent", 46, 1, 41, 1))
sketch6.addConstraint(Sketcher.Constraint("Tangent", 48, 2, 49, 1))
sketch6.addConstraint(Sketcher.Constraint("Tangent", 49, 2, 50, 1))
sketch6.addConstraint(Sketcher.Constraint("Tangent", 50, 2, 51, 1))
sketch6.addConstraint(Sketcher.Constraint("Tangent", 51, 2, 52, 1))
sketch6.addConstraint(Sketcher.Constraint("Tangent", 52, 2, 53, 2))
sketch6.addConstraint(Sketcher.Constraint("Tangent", 53, 1, 54, 1))
sketch6.addConstraint(Sketcher.Constraint("Coincident", 54, 2, 48, 1))
sketch6.addConstraint(Sketcher.Constraint("Horizontal", 1))
sketch6.addConstraint(Sketcher.Constraint("Vertical", 3))
sketch6.addConstraint(Sketcher.Constraint("Horizontal", 4))
sketch6.addConstraint(Sketcher.Constraint("Vertical", 6))
sketch6.addConstraint(Sketcher.Constraint("Horizontal", 9))
sketch6.addConstraint(Sketcher.Constraint("Vertical", 11))
sketch6.addConstraint(Sketcher.Constraint("Vertical", 13))
sketch6.addConstraint(Sketcher.Constraint("Horizontal", 16))
sketch6.addConstraint(Sketcher.Constraint("Vertical", 18))
sketch6.addConstraint(Sketcher.Constraint("Vertical", 20))
sketch6.addConstraint(Sketcher.Constraint("Horizontal", 23))
sketch6.addConstraint(Sketcher.Constraint("Vertical", 24))
sketch6.addConstraint(Sketcher.Constraint("Vertical", 26))
sketch6.addConstraint(Sketcher.Constraint("Horizontal", 28))
sketch6.addConstraint(Sketcher.Constraint("Vertical", 30))
sketch6.addConstraint(Sketcher.Constraint("Vertical", 32))
sketch6.addConstraint(Sketcher.Constraint("Horizontal", 34))
sketch6.addConstraint(Sketcher.Constraint("Vertical", 36))
sketch6.addConstraint(Sketcher.Constraint("Vertical", 38))
sketch6.addConstraint(Sketcher.Constraint("Horizontal", 41))
sketch6.addConstraint(Sketcher.Constraint("Vertical", 43))
sketch6.addConstraint(Sketcher.Constraint("Vertical", 45))
sketch6.addConstraint(Sketcher.Constraint("Vertical", 48))
sketch6.addConstraint(Sketcher.Constraint("Horizontal", 50))
sketch6.addConstraint(Sketcher.Constraint("Vertical", 52))
sketch6.addConstraint(Sketcher.Constraint("Horizontal", 54))
sketch6.addConstraint(Sketcher.Constraint("Coincident", 32, 2, -1, 1))
sketch6.addConstraint(Sketcher.Constraint("Coincident", 14, 3, 12, 3))
sketch6.addConstraint(Sketcher.Constraint("Coincident", 21, 3, 19, 3))
sketch6.addConstraint(Sketcher.Constraint("Coincident", 27, 3, 25, 3))
sketch6.addConstraint(Sketcher.Constraint("Coincident", 33, 3, 31, 3))
sketch6.addConstraint(Sketcher.Constraint("Coincident", 40, 3, 37, 3))
sketch6.addConstraint(Sketcher.Constraint("Coincident", 47, 3, 44, 3))
sketch6.addConstraint(Sketcher.Constraint("Equal", 0, 2))
sketch6.addConstraint(Sketcher.Constraint("Equal", 5, 8))
sketch6.addConstraint(Sketcher.Constraint("Equal", 8, 10))
sketch6.addConstraint(Sketcher.Constraint("Equal", 7, 14))
sketch6.addConstraint(Sketcher.Constraint("Equal", 10, 15))
sketch6.addConstraint(Sketcher.Constraint("Equal", 15, 17))
sketch6.addConstraint(Sketcher.Constraint("Equal", 12, 19))
sketch6.addConstraint(Sketcher.Constraint("Equal", 14, 21))
sketch6.addConstraint(Sketcher.Constraint("Equal", 17, 22))
sketch6.addConstraint(Sketcher.Constraint("Equal", 19, 25))
sketch6.addConstraint(Sketcher.Constraint("Equal", 21, 27))
sketch6.addConstraint(Sketcher.Constraint("Equal", 22, 29))
sketch6.addConstraint(Sketcher.Constraint("Equal", 25, 31))
sketch6.addConstraint(Sketcher.Constraint("Equal", 29, 35))
sketch6.addConstraint(Sketcher.Constraint("Equal", 31, 37))
sketch6.addConstraint(Sketcher.Constraint("Equal", 35, 39))
sketch6.addConstraint(Sketcher.Constraint("Equal", 33, 40))
sketch6.addConstraint(Sketcher.Constraint("Equal", 39, 42))
sketch6.addConstraint(Sketcher.Constraint("Equal", 37, 44))
sketch6.addConstraint(Sketcher.Constraint("Equal", 42, 46))
sketch6.addConstraint(Sketcher.Constraint("Equal", 40, 47))
sketch6.addConstraint(Sketcher.Constraint("Equal", 2, 49))
sketch6.addConstraint(Sketcher.Constraint("Equal", 49, 51))
sketch6.addConstraint(Sketcher.Constraint("Equal", 46, 53))
sketch6.addConstraint(Sketcher.Constraint("Equal", 47, 55))
sketch6.addConstraint(Sketcher.Constraint("PointOnObject", 23, 2, -2))
sketch6.addConstraint(Sketcher.Constraint("PointOnObject", 34, 2, -1))
sketch6.addConstraint(Sketcher.Constraint("PointOnObject", 41, 2, -1))
sketch6.addConstraint(Sketcher.Constraint("PointOnObject", 53, 1, -1))
sketch6.addConstraint(Sketcher.Constraint("Horizontal", 5, 3, 8, 3))
sketch6.addConstraint(Sketcher.Constraint("Horizontal", 7, 3, 12, 3))
sketch6.addConstraint(Sketcher.Constraint("Horizontal", 10, 3, 15, 3))
sketch6.addConstraint(Sketcher.Constraint("Horizontal", 14, 3, 19, 3))
sketch6.addConstraint(Sketcher.Constraint("Horizontal", 17, 3, 22, 3))
sketch6.addConstraint(Sketcher.Constraint("Horizontal", 21, 3, 25, 3))
sketch6.addConstraint(Sketcher.Constraint("Horizontal", 33, 3, 37, 3))
sketch6.addConstraint(Sketcher.Constraint("Horizontal", 40, 3, 44, 3))
sketch6.addConstraint(Sketcher.Constraint("Horizontal", 47, 3, 55, 3))
sketch6.addConstraint(Sketcher.Constraint("Vertical", 15, 3, 35, 3))
sketch6.addConstraint(Sketcher.Constraint("Vertical", 8, 3, 42, 3))
sketch6.addConstraint(Sketcher.Constraint("Vertical", 2, 3, 49, 3))
sketch6.addConstraint(Sketcher.Constraint("Vertical", 0, 3, 51, 3))
sketch6.addConstraint(Sketcher.Constraint("Vertical", 7, 3, 55, 3))
sketch6.addConstraint(Sketcher.Constraint("Equal", 4, 23))
sketch6.addConstraint(Sketcher.Constraint("Equal", 26, 30))
sketch6.addConstraint(Sketcher.Constraint("Equal", 3, 48))
sketch6.addConstraint(Sketcher.Constraint("Radius", 0, Q("1 mm")))
sketch6.addConstraint(Sketcher.Constraint("Radius", 12, Q("4 mm")))
sketch6.addConstraint(Sketcher.Constraint("Diameter", 33, Q("3.3 mm")))
sketch6.addConstraint(Sketcher.Constraint("Radius", 5, Q("2.5 mm")))
sketch6.addConstraint(Sketcher.Constraint("Diameter", 7, Q("3.15 mm")))
sketch6.addConstraint(Sketcher.Constraint("DistanceY", 3, 2, 3, 1, Q("7 mm")))
sketch6.addConstraint(Sketcher.Constraint("DistanceY", 24, 1, 24, 2, Q("4 mm")))
sketch6.addConstraint(Sketcher.Constraint("DistanceX", 0, 3, -1, 1, Q("143 mm")))
sketch6.addConstraint(Sketcher.Constraint("DistanceY", -1, 1, 0, 3, Q("52 mm")))
sketch6.addConstraint(Sketcher.Constraint("DistanceX", 7, 3, -1, 1, Q("146 mm")))
sketch6.addConstraint(Sketcher.Constraint("DistanceX", 8, 3, -1, 1, Q("105.166667 mm")))
sketch6.addConstraint(Sketcher.Constraint("DistanceX", 15, 3, -1, 1, Q("57.833333 mm")))
pad3 = body.newObject("PartDesign::Pad", "Pad002")
pad3.Profile = sketch6
pad3.Length = 5
pad3.Reversed = True

# Sketch on XZ plane
sketch7 = body.newObject("Sketcher::SketchObject", "Sketch006")
sketch7.AttachmentSupport = (doc.getObject("XZ_Plane"), [""])
sketch7.MapMode = "FlatFace"
sketch7.AttachmentOffset = App.Placement(V(0, 0, -5), App.Rotation())
sketch7.addGeometry(Part.Circle(V(-146, -4, 0), V(0, 0, 1), 3), False)
sketch7.addGeometry(Part.Circle(V(-98.7, -4, 0), V(0, 0, 1), 3), False)
sketch7.addGeometry(Part.Circle(V(-51.3, -4, 0), V(0, 0, 1), 3), False)
sketch7.addGeometry(Part.Circle(V(-4, -4, 0), V(0, 0, 1), 3), False)
sketch7.addGeometry(Part.Circle(V(-4, 49, 0), V(0, 0, 1), 3), False)
sketch7.addGeometry(Part.Circle(V(-51.3, 49, 0), V(0, 0, 1), 3), False)
sketch7.addGeometry(Part.Circle(V(-98.7, 49, 0), V(0, 0, 1), 3), False)
sketch7.addGeometry(Part.Circle(V(-146, 49, 0), V(0, 0, 1), 3), False)
sketch7.addConstraint(Sketcher.Constraint("Equal", 0, 1))
sketch7.addConstraint(Sketcher.Constraint("Equal", 1, 2))
sketch7.addConstraint(Sketcher.Constraint("Equal", 2, 3))
sketch7.addConstraint(Sketcher.Constraint("Equal", 3, 4))
sketch7.addConstraint(Sketcher.Constraint("Equal", 4, 5))
sketch7.addConstraint(Sketcher.Constraint("Equal", 5, 6))
sketch7.addConstraint(Sketcher.Constraint("Equal", 6, 7))
sketch7.addConstraint(Sketcher.Constraint("Horizontal", 0, 3, 1, 3))
sketch7.addConstraint(Sketcher.Constraint("Horizontal", 1, 3, 2, 3))
sketch7.addConstraint(Sketcher.Constraint("Horizontal", 2, 3, 3, 3))
sketch7.addConstraint(Sketcher.Constraint("Horizontal", 4, 3, 5, 3))
sketch7.addConstraint(Sketcher.Constraint("Horizontal", 5, 3, 6, 3))
sketch7.addConstraint(Sketcher.Constraint("Horizontal", 6, 3, 7, 3))
sketch7.addConstraint(Sketcher.Constraint("Vertical", 3, 3, 4, 3))
sketch7.addConstraint(Sketcher.Constraint("Vertical", 2, 3, 5, 3))
sketch7.addConstraint(Sketcher.Constraint("Vertical", 1, 3, 6, 3))
sketch7.addConstraint(Sketcher.Constraint("Vertical", 0, 3, 7, 3))
sketch7.addConstraint(Sketcher.Constraint("Diameter", 0, Q("6 mm")))
sketch7.addConstraint(Sketcher.Constraint("DistanceX", 0, 3, -1, 1, Q("146 mm")))
sketch7.addConstraint(Sketcher.Constraint("DistanceY", 0, 3, -1, 1, Q("4 mm")))
sketch7.addConstraint(Sketcher.Constraint("DistanceX", 3, 3, -1, 1, Q("4 mm")))
sketch7.addConstraint(Sketcher.Constraint("DistanceY", -1, 1, 4, 3, Q("49 mm")))
sketch7.addConstraint(Sketcher.Constraint("DistanceX", 1, 3, -1, 1, Q("98.666667 mm")))
sketch7.addConstraint(Sketcher.Constraint("DistanceX", 2, 3, -1, 1, Q("51.333333 mm")))
pocket3 = body.newObject("PartDesign::Pocket", "Pocket002")
pocket3.Profile = sketch7
pocket3.Length = 1
pocket3.Reversed = True
doc.recompute()

fillet = body.newObject("PartDesign::Fillet", "Fillet")
fillet.Base = (pocket3, edges_at(pocket3, [
    (-150, 20, -7),
    (-173, 17.5, -7),
    (-173, 17.5, 52),
    (-150, 20, 52),
    (0, 20, 45),
    (0, 20, 0),
]))
fillet.Radius = 2.5

doc.recompute()
